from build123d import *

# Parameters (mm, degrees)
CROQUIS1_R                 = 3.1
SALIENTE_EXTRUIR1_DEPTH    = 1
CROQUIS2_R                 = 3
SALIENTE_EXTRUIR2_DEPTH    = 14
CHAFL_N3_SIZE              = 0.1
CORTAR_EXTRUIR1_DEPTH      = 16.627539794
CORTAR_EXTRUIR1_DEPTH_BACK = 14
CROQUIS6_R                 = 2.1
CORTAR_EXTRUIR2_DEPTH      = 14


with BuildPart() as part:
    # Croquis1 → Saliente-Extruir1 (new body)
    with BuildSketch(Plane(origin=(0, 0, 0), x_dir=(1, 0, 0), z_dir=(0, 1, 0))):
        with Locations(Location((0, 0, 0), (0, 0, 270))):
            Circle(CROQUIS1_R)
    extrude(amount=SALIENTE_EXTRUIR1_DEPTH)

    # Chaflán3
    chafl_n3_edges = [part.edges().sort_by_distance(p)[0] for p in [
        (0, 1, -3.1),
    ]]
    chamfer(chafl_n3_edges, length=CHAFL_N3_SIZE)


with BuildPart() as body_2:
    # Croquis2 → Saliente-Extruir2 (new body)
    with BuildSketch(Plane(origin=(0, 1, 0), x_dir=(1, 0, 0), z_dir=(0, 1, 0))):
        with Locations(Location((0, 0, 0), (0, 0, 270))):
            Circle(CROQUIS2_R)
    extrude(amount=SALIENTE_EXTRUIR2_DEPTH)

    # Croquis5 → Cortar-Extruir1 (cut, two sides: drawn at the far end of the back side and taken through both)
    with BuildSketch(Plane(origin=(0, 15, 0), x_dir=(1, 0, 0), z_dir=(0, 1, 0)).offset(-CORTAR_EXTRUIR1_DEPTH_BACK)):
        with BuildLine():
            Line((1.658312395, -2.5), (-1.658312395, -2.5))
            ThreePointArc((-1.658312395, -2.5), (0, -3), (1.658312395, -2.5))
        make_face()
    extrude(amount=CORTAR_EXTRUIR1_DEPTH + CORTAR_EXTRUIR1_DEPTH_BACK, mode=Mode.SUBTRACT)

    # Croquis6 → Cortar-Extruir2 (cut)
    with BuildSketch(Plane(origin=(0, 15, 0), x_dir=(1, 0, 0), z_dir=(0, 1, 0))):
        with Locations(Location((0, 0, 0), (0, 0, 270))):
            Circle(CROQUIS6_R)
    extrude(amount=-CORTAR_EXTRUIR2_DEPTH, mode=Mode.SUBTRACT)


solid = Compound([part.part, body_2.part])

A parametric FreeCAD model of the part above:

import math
import FreeCAD as App
import Part
import Sketcher
Q = App.Units.Quantity


def edges_at(feature, points):
    """Names of the edges that pass closest to the given points."""
    edges = feature.Shape.Edges
    near = lambda p: min(range(len(edges)), key=lambda i: edges[i].distToShape(Part.Vertex(*p))[0])
    return sorted({f"Edge{near(p) + 1}" for p in points})

doc = App.newDocument("Part")
body = doc.addObject("PartDesign::Body", "Body")

# Sketch on XZ plane
sketch1 = doc.addObject("Sketcher::SketchObject", "Sketch")
body.addObject(sketch1)
sketch1.AttachmentSupport = (doc.XZ_Plane, [""])
sketch1.MapMode = "FlatFace"
sketch1.addGeometry(Part.Circle(App.Vector(0, 0, 0), App.Vector(0, 0, 1), 3.1), False)
sketch1.addConstraint([
    Sketcher.Constraint("Coincident", 0, 3, -1, 1),
    Sketcher.Constraint("Diameter", 0, Q("6.2 mm")),
])
pad1 = doc.addObject("PartDesign::Pad", "Pad")
body.addObject(pad1)
pad1.Profile = sketch1
pad1.Length = 1
pad1.Reversed = True
doc.recompute()

chamfer = doc.addObject("PartDesign::Chamfer", "Chamfer")
body.addObject(chamfer)
chamfer.Base = (pad1, edges_at(pad1, [(0, 1, -3.1)]))
chamfer.Size = 0.1
body2 = doc.addObject("PartDesign::Body", "Body001")

# Sketch on XZ plane
sketch2 = doc.addObject("Sketcher::SketchObject", "Sketch001")
body2.addObject(sketch2)
sketch2.AttachmentSupport = (doc.getObject("XZ_Plane001"), [""])
sketch2.MapMode = "FlatFace"
sketch2.AttachmentOffset = App.Placement(App.Vector(0, 0, -1), App.Rotation())
sketch2.addGeometry(Part.Circle(App.Vector(0, 0, 0), App.Vector(0, 0, 1), 3), False)
sketch2.addConstraint([
    Sketcher.Constraint("Coincident", 0, 3, -1, 1),
    Sketcher.Constraint("Diameter", 0, Q("6 mm")),
])
pad2 = doc.addObject("PartDesign::Pad", "Pad001")
body2.addObject(pad2)
pad2.Profile = sketch2
pad2.Length = 14
pad2.Reversed = True

# Sketch on XZ plane
sketch3 = doc.addObject("Sketcher::SketchObject", "Sketch002")
body2.addObject(sketch3)
sketch3.AttachmentSupport = (doc.getObject("XZ_Plane001"), [""])
sketch3.MapMode = "FlatFace"
sketch3.AttachmentOffset = App.Placement(App.Vector(0, 0, -15), App.Rotation())
sketch3.addGeometry([
    Part.LineSegment(App.Vector(1.7, 2.5, 0), App.Vector(-1.7, 2.5, 0)),
    Part.ArcOfCircle(Part.Circle(App.Vector(0, 0, 0), App.Vector(0, 0, 1), 3), math.radians(56), math.radians(124)),
], False)
sketch3.addConstraint([
    Sketcher.Constraint("Coincident", 0, 1, 1, 1),
    Sketcher.Constraint("Coincident", 1, 2, 0, 2),
    Sketcher.Constraint("Horizontal", 0),
    Sketcher.Constraint("Coincident", 1, 3, -1, 1),
    Sketcher.Constraint("Radius", 1, Q("3 mm")),
    Sketcher.Constraint("DistanceY", -1, 1, 0, 1, Q("2.5 mm")),
])
pocket1 = doc.addObject("PartDesign::Pocket", "Pocket")
body2.addObject(pocket1)
pocket1.Profile = sketch3
pocket1.Type = "ThroughAll"
pocket1.Midplane = True

# Sketch on XZ plane
sketch4 = doc.addObject("Sketcher::SketchObject", "Sketch003")
body2.addObject(sketch4)
sketch4.AttachmentSupport = (doc.getObject("XZ_Plane001"), [""])
sketch4.MapMode = "FlatFace"
sketch4.AttachmentOffset = App.Placement(App.Vector(0, 0, -15), App.Rotation())
sketch4.addGeometry(Part.Circle(App.Vector(0, 0, 0), App.Vector(0, 0, 1), 2.1), False)
sketch4.addConstraint([
    Sketcher.Constraint("Coincident", 0, 3, -1, 1),
    Sketcher.Constraint("Diameter", 0, Q("4.2 mm")),
])
pocket2 = doc.addObject("PartDesign::Pocket", "Pocket001")
body2.addObject(pocket2)
pocket2.Profile = sketch4
pocket2.Length = 14
pocket2.Reversed = True

doc.recompute()
